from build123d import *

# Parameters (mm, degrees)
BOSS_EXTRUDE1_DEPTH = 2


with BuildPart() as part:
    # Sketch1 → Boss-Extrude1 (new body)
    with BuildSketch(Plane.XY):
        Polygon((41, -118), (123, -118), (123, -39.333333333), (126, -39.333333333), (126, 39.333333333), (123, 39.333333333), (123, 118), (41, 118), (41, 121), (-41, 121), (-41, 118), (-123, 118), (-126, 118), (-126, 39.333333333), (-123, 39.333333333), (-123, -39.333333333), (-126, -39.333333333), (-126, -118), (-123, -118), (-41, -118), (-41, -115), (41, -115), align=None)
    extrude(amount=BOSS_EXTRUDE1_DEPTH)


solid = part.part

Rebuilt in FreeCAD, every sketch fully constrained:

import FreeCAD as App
import Part
import Sketcher
Q = App.Units.Quantity


def add_polygon(sketch, points):
    """Adds a closed chain of lines whose ends are joined by coincident constraints."""
    first, n = sketch.GeometryCount, len(points)
    for a, b in zip(points, points[1:] + points[:1]):
        sketch.addGeometry(Part.LineSegment(App.Vector(*a, 0), App.Vector(*b, 0)), False)
    for i in range(n):
        sketch.addConstraint(Sketcher.Constraint("Coincident", first + i, 2, first + (i + 1) % n, 1))

doc = App.newDocument("Part")
params = doc.addObject("Spreadsheet::Sheet", "Params")
for row, (alias, value) in enumerate([
    ("sketch1_width", "82 mm"),
    ("sketch1_width2", "3 mm"),
    ("pad1_length", "2 mm"),
], start=1):
    params.set(f"A{row}", alias)
    params.set(f"B{row}", "=" + value)
    params.setAlias(f"B{row}", alias)

body = doc.addObject("PartDesign::Body", "Body")

# Sketch on XY plane
sketch1 = body.newObject("Sketcher::SketchObject", "Sketch")
sketch1.AttachmentSupport = (doc.getObject("XY_Plane"), [""])
sketch1.MapMode = "FlatFace"
add_polygon(sketch1, [(41, -118), (123, -118), (123, -39.333333), (126, -39.333333), (126, 39.333333), (123, 39.333333), (123, 118), (41, 118), (41, 121), (-41, 121), (-41, 118), (-126, 118), (-126, 39.333333), (-123, 39.333333), (-123, -39.333333), (-126, -39.333333), (-126, -118), (-41, -118), (-41, -115), (41, -115)])  # lines 0-19
sketch1.addConstraint([
    Sketcher.Constraint("Horizontal", 0),
    Sketcher.Constraint("Vertical", 1),
    Sketcher.Constraint("Horizontal", 2),
    Sketcher.Constraint("Vertical", 3),
    Sketcher.Constraint("Horizontal", 4),
    Sketcher.Constraint("Vertical", 5),
    Sketcher.Constraint("Horizontal", 6),
    Sketcher.Constraint("Vertical", 7),
    Sketcher.Constraint("Horizontal", 8),
    Sketcher.Constraint("Vertical", 9),
    Sketcher.Constraint("Horizontal", 10),
    Sketcher.Constraint("Vertical", 11),
    Sketcher.Constraint("Horizontal", 12),
    Sketcher.Constraint("Vertical", 13),
    Sketcher.Constraint("Horizontal", 14),
    Sketcher.Constraint("Vertical", 15),
    Sketcher.Constraint("Horizontal", 16),
    Sketcher.Constraint("Vertical", 17),
    Sketcher.Constraint("Horizontal", 18),
    Sketcher.Constraint("Vertical", 19),
    Sketcher.Constraint("Symmetric", 2, 2, 11, 2, -1, 1),
    Sketcher.Constraint("Symmetric", 4, 2, 13, 2, -1, 1),
    Sketcher.Constraint("Symmetric", 6, 2, 16, 2, -1, 1),
    Sketcher.Constraint("Symmetric", 9, 2, 19, 2, -1, 1),
    Sketcher.Constraint("Symmetric", 6, 2, 9, 2, -2),
    Sketcher.Constraint("Symmetric", 1, 2, 13, 2, -2),
    Sketcher.Constraint("Vertical", 11, 2, 14, 2),
    Sketcher.Constraint("Equal", 6, 8),
    Sketcher.Constraint("Equal", 1, 3),
    Sketcher.Constraint("Equal", 14, 7),
    Sketcher.Constraint("Equal", 9, 17),
    Sketcher.Constraint("DistanceX", 0, 1, 0, 2, Q("82 mm")),
    Sketcher.Constraint("DistanceX", 2, 1, 2, 2, Q("3 mm")),
    Sketcher.Constraint("DistanceY", 0, 2, -1, 1, Q("118 mm")),
])
sketch1.setExpression("Constraints[51]", "Params.sketch1_width")
sketch1.setExpression("Constraints[52]", "Params.sketch1_width2")
pad1 = body.newObject("PartDesign::Pad", "Pad")
pad1.Profile = sketch1
pad1.setExpression("Length", "Params.pad1_length")

doc.recompute()
